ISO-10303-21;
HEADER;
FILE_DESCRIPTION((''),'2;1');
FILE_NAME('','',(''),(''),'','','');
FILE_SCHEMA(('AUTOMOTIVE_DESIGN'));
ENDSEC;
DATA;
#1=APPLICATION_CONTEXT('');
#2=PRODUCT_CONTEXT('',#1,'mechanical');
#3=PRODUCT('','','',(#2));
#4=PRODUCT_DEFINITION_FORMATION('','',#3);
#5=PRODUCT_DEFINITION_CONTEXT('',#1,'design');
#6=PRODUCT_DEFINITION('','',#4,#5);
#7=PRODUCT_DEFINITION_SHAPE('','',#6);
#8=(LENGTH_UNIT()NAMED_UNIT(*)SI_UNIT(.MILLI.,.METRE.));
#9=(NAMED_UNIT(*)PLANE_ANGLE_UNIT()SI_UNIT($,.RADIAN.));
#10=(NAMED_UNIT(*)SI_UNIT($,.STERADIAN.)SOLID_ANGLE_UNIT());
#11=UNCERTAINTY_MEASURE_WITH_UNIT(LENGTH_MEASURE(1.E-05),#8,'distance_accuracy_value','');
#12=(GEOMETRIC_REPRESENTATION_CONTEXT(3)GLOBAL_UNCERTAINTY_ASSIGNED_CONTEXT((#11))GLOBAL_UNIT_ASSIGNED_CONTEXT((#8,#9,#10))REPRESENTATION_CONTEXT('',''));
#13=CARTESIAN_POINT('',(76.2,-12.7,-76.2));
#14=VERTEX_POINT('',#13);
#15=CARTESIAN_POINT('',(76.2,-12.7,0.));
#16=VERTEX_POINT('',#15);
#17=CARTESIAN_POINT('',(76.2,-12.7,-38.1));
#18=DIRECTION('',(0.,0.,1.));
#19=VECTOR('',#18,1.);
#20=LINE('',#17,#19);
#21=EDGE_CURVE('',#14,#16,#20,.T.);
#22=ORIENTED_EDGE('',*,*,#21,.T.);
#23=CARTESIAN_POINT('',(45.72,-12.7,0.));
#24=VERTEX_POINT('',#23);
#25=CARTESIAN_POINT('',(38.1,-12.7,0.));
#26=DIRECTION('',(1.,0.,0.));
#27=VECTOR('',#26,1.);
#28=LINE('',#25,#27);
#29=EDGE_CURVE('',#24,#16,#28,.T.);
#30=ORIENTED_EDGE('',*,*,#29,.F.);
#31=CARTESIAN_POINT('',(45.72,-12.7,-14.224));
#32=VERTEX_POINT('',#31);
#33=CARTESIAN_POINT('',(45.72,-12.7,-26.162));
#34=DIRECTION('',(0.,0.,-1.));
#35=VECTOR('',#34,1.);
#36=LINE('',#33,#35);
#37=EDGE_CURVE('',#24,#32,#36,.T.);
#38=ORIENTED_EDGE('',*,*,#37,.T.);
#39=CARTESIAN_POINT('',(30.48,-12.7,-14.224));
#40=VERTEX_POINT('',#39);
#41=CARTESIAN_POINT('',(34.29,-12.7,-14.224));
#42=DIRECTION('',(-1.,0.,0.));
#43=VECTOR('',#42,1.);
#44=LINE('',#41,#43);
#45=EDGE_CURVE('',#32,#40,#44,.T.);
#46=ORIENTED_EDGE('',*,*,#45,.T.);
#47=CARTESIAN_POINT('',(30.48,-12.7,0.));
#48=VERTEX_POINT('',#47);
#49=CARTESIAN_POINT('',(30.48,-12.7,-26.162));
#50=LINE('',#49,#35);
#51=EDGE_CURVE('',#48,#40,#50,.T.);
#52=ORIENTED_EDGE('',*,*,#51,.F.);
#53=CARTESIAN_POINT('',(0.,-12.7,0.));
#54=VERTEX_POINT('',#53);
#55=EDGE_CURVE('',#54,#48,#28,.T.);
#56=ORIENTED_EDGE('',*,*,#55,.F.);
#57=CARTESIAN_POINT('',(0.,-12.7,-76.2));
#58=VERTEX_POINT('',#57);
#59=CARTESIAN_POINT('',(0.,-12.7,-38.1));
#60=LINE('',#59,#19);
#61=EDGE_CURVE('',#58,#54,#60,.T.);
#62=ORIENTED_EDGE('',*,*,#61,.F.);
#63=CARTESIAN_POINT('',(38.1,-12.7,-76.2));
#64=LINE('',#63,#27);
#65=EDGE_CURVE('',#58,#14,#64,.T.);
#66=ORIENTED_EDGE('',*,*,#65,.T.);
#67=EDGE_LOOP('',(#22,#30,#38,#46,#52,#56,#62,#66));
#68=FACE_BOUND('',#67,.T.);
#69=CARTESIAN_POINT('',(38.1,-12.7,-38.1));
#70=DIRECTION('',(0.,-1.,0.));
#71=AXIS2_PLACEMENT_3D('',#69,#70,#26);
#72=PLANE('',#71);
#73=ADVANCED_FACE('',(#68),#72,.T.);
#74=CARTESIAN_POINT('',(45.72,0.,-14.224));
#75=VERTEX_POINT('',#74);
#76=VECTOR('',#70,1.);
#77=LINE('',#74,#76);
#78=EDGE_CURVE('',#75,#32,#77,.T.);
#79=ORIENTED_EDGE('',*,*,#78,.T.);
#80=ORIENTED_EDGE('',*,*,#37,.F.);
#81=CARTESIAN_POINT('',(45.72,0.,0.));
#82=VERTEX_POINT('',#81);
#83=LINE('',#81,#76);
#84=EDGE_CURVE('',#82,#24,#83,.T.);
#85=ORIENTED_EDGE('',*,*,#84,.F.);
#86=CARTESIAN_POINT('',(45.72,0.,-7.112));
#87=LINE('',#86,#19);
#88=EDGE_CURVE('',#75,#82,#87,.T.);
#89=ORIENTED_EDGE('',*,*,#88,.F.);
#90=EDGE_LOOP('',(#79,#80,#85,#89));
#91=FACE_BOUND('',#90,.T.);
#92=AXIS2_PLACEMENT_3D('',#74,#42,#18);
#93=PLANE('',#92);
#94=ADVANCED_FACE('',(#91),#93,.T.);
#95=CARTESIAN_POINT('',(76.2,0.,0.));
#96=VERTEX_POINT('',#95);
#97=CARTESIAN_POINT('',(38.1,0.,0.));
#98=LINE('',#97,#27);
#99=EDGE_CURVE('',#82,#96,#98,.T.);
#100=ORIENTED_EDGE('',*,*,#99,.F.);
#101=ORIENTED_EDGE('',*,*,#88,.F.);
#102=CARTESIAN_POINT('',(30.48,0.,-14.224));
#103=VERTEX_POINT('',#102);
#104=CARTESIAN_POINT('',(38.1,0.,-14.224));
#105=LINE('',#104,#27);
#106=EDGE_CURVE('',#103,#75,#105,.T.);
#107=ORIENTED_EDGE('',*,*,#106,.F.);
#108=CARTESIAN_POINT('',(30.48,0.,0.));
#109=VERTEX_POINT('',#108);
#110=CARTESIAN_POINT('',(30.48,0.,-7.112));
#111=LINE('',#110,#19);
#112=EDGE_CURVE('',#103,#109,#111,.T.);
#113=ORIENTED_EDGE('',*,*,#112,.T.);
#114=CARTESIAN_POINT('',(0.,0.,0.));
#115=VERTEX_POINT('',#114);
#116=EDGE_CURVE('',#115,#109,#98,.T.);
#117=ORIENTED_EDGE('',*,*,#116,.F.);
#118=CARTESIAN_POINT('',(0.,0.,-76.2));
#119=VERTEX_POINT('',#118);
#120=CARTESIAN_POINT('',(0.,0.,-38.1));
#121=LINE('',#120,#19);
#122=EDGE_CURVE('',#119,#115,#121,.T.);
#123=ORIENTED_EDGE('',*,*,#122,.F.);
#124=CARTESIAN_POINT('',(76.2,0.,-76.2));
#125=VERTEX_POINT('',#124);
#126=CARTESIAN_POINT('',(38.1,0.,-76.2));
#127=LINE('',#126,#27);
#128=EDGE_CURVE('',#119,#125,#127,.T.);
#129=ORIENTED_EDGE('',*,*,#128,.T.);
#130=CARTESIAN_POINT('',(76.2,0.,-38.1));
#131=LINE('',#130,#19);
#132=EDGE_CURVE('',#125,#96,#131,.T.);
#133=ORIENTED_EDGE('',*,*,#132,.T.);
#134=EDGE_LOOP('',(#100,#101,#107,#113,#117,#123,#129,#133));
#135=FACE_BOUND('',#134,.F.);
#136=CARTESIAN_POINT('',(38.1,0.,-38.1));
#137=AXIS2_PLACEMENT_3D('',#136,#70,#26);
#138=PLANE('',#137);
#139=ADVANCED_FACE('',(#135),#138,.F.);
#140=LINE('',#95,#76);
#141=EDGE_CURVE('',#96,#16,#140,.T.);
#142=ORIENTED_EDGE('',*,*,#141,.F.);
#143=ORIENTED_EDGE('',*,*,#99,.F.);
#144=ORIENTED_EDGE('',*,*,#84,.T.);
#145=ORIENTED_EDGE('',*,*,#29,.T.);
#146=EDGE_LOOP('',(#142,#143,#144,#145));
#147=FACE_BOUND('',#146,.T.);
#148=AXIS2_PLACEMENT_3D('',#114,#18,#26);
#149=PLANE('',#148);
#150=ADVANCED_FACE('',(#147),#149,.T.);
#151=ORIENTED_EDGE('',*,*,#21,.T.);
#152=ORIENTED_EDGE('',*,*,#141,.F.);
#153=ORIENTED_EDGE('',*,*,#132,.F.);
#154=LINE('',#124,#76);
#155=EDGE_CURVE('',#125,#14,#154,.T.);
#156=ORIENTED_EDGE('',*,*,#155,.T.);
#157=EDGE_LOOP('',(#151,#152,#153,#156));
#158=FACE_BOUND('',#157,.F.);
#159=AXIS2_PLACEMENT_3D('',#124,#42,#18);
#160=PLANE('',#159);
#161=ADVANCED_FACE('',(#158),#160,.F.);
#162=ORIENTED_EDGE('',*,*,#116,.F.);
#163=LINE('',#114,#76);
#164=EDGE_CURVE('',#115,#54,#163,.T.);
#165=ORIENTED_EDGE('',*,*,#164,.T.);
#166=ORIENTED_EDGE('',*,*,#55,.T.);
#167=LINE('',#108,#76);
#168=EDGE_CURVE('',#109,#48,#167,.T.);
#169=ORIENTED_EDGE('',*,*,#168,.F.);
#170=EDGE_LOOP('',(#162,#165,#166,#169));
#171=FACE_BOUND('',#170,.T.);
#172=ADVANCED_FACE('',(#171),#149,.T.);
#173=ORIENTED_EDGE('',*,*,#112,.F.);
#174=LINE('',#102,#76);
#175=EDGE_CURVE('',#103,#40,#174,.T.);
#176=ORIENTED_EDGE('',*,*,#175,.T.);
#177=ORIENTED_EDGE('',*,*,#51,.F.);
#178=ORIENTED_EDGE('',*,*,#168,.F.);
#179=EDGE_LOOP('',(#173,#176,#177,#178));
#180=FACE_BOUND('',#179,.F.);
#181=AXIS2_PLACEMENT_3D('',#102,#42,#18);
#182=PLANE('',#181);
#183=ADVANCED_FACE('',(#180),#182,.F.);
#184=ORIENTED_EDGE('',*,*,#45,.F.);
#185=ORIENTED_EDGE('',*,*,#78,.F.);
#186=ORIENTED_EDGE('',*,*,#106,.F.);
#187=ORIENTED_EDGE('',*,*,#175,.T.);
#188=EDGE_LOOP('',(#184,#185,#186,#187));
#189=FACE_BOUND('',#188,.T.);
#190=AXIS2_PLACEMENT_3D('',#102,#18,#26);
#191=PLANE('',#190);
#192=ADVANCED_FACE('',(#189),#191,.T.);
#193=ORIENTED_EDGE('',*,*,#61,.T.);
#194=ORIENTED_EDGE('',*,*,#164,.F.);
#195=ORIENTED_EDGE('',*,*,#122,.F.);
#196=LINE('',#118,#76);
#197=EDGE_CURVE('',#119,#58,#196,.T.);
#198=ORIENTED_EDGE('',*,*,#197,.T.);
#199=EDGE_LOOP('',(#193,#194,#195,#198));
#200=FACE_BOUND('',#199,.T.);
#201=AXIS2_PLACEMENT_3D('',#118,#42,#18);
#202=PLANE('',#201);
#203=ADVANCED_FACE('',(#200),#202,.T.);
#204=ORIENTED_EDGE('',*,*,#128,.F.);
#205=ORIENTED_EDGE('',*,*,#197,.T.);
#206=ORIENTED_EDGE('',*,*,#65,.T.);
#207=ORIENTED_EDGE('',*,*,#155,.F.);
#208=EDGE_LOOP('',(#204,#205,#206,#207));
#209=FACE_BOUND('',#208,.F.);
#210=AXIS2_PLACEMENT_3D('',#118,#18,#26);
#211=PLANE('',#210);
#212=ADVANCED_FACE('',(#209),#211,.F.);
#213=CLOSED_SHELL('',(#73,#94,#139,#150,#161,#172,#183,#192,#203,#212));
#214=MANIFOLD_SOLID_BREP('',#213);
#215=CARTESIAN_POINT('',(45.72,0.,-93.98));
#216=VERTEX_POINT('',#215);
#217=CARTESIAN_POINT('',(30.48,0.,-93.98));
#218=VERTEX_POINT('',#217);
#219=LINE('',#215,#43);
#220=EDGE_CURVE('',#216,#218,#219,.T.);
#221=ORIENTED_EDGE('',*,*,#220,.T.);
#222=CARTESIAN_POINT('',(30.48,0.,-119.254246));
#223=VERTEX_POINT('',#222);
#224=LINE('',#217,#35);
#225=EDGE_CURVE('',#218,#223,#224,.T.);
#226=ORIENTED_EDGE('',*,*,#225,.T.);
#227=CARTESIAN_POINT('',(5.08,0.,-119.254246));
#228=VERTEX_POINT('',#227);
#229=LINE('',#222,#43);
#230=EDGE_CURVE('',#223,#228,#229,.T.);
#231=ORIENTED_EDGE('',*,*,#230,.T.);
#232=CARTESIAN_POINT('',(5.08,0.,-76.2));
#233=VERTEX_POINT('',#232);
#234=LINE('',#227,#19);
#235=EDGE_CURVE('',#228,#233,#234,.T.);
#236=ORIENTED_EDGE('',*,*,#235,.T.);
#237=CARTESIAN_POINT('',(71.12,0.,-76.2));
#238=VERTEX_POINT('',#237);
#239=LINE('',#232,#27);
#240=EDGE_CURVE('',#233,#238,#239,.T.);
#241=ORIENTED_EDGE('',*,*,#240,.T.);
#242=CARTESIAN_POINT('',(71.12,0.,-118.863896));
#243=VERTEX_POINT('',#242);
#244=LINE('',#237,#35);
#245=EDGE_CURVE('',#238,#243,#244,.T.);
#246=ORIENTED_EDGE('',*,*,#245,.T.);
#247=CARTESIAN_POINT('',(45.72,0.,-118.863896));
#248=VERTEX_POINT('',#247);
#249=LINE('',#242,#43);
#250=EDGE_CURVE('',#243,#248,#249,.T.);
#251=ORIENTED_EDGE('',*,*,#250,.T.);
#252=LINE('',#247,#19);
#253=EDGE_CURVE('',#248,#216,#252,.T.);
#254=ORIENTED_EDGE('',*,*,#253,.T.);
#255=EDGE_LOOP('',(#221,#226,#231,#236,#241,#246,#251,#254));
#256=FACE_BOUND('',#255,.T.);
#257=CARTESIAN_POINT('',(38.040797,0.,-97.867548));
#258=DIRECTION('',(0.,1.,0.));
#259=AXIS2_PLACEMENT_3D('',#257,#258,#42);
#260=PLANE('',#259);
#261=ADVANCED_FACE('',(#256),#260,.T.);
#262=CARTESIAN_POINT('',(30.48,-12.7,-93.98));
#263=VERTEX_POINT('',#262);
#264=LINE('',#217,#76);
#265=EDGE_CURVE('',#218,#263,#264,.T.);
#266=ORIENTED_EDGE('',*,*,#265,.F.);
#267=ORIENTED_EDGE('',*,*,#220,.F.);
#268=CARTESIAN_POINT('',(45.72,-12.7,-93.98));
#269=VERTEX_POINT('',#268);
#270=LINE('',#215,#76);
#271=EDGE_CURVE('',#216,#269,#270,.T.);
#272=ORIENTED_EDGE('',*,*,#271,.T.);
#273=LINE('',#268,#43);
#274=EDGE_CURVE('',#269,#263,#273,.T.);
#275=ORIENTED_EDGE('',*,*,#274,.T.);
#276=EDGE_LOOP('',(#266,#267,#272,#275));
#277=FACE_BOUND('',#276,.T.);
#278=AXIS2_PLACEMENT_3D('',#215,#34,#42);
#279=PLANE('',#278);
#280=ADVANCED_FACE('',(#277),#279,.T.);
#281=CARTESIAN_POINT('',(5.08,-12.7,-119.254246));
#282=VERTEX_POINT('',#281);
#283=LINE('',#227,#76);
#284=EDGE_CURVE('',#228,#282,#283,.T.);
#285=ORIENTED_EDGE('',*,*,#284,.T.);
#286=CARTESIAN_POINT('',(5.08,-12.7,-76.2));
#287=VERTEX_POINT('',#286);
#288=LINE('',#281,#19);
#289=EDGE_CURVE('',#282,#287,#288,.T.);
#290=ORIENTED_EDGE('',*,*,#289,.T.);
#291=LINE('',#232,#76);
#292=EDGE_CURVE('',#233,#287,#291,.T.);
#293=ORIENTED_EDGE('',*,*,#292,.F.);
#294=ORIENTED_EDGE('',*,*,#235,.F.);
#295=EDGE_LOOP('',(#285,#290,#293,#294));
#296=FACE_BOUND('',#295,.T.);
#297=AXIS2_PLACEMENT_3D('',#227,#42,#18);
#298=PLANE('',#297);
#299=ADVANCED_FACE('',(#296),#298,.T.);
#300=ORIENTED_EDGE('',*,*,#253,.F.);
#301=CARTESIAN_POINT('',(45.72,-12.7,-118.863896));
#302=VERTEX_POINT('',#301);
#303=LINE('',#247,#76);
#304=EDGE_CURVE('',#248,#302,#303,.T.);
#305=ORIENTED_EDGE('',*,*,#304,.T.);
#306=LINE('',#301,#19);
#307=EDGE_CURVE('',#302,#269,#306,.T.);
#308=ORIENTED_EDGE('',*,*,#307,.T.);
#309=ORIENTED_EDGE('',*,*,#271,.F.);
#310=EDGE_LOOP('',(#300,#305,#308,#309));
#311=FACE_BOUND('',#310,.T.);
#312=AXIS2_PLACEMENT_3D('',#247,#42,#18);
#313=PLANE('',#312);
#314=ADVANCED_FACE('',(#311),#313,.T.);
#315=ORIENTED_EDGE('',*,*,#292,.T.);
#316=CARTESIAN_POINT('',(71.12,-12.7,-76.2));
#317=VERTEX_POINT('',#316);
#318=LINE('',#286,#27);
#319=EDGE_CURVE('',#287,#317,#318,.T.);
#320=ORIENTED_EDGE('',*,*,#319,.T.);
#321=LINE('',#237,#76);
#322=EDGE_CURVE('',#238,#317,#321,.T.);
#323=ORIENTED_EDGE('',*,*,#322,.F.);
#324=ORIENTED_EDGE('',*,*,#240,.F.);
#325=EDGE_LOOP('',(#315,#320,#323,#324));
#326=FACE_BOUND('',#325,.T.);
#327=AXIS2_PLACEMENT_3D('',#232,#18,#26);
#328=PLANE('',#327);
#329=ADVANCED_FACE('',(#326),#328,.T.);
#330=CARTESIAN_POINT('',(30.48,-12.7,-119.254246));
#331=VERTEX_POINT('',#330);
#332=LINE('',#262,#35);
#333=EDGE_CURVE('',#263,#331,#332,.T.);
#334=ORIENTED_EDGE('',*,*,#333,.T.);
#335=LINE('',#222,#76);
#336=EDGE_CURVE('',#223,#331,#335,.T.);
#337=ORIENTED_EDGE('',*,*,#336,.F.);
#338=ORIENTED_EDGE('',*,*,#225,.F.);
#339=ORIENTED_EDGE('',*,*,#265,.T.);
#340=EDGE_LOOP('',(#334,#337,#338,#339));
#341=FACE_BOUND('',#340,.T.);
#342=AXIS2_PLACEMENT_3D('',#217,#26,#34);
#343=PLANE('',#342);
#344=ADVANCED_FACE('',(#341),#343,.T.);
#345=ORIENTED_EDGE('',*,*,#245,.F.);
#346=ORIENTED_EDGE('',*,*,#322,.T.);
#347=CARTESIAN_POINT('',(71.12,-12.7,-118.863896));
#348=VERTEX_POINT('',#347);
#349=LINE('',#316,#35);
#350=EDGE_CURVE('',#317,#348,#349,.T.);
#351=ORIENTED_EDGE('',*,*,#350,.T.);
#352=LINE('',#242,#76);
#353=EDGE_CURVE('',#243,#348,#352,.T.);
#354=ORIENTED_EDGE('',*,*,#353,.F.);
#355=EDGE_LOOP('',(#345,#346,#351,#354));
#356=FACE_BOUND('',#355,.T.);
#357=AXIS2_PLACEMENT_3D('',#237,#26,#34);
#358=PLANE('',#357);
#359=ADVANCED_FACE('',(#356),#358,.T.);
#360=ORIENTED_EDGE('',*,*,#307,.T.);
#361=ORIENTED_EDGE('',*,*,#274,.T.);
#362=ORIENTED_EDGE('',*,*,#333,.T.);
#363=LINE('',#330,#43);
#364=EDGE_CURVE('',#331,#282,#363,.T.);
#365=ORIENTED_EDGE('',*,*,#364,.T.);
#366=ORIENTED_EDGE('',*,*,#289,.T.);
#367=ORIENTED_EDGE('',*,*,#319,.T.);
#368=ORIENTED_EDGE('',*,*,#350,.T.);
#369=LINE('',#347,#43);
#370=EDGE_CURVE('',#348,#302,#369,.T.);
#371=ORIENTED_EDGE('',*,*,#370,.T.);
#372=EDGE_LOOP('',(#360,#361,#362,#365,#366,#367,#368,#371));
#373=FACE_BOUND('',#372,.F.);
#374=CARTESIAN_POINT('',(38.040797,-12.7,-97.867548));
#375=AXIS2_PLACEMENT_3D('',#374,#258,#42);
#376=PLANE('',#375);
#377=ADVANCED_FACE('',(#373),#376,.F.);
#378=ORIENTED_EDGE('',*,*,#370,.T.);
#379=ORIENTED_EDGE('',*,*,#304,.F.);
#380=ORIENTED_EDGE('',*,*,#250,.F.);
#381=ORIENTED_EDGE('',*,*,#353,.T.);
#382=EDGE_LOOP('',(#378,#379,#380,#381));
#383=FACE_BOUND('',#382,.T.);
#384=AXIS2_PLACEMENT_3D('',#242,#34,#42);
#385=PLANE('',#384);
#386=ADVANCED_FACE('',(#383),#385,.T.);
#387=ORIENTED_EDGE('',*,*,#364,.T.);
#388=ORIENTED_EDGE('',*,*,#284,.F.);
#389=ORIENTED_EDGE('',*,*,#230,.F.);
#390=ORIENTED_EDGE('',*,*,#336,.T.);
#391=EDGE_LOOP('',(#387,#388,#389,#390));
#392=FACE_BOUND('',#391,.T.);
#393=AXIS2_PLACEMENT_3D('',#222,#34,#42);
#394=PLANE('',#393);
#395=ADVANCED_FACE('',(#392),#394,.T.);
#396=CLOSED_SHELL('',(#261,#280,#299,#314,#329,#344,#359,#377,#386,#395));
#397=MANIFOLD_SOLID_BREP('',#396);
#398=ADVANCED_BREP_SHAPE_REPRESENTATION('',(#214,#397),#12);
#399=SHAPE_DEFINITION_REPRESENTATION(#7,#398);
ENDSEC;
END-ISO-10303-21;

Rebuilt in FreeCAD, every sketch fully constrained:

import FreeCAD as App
import Part
import Sketcher
Q = App.Units.Quantity


def add_polygon(sketch, points):
    """Adds a closed chain of lines whose ends are joined by coincident constraints."""
    first, n = sketch.GeometryCount, len(points)
    for a, b in zip(points, points[1:] + points[:1]):
        sketch.addGeometry(Part.LineSegment(App.Vector(*a, 0), App.Vector(*b, 0)), False)
    for i in range(n):
        sketch.addConstraint(Sketcher.Constraint("Coincident", first + i, 2, first + (i + 1) % n, 1))

doc = App.newDocument("Part")
body = doc.addObject("PartDesign::Body", "Body")

# Sketch on XZ plane
sketch1 = doc.addObject("Sketcher::SketchObject", "Sketch")
body.addObject(sketch1)
sketch1.AttachmentSupport = (doc.XZ_Plane, [""])
sketch1.MapMode = "FlatFace"
add_polygon(sketch1, [(0, 0), (0, -76.2), (76.2, -76.2), (76.2, 0)])  # lines 0-3
sketch1.addConstraint([
    Sketcher.Constraint("Vertical", 0),
    Sketcher.Constraint("Horizontal", 1),
    Sketcher.Constraint("Vertical", 2),
    Sketcher.Constraint("Horizontal", 3),
    Sketcher.Constraint("Coincident", 3, 2, -1, 1),
    Sketcher.Constraint("Equal", 3, 0),
    Sketcher.Constraint("DistanceX", 1, 1, 1, 2, Q("3 in")),
])
pad1 = doc.addObject("PartDesign::Pad", "Pad")
body.addObject(pad1)
pad1.Profile = sketch1
pad1.Length = Q("0.5 in")

# Sketch on XZ plane
sketch2 = doc.addObject("Sketcher::SketchObject", "Sketch001")
body.addObject(sketch2)
sketch2.AttachmentSupport = (doc.XZ_Plane, [""])
sketch2.MapMode = "FlatFace"
add_polygon(sketch2, [(30.48, 0), (30.48, -14.224), (45.72, -14.224), (45.72, 0)])  # lines 0-3
sketch2.addConstraint([
    Sketcher.Constraint("Vertical", 0),
    Sketcher.Constraint("Horizontal", 1),
    Sketcher.Constraint("Vertical", 2),
    Sketcher.Constraint("Horizontal", 3),
    Sketcher.Constraint("PointOnObject", 2, 2, -1),
    Sketcher.Constraint("DistanceX", 1, 1, 1, 2, Q("0.6 in")),
    Sketcher.Constraint("DistanceY", 0, 2, 0, 1, Q("0.56 in")),
    Sketcher.Constraint("DistanceX", -1, 1, 0, 2, Q("1.2 in")),
])
pocket1 = doc.addObject("PartDesign::Pocket", "Pocket")
body.addObject(pocket1)
pocket1.Profile = sketch2
pocket1.Length = Q("1 in")
pocket1.Reversed = True
body2 = doc.addObject("PartDesign::Body", "Body001")

# Sketch on XZ plane
sketch3 = doc.addObject("Sketcher::SketchObject", "Sketch002")
body2.addObject(sketch3)
sketch3.AttachmentSupport = (doc.getObject("XZ_Plane001"), [""])
sketch3.MapMode = "FlatFace"
add_polygon(sketch3, [(5.08, -76.2), (71.12, -76.2), (71.12, -118.863896), (45.72, -118.863896), (45.72, -93.98), (30.48, -93.98), (30.48, -119.254246), (5.08, -119.254246)])  # lines 0-7
sketch3.addConstraint([
    Sketcher.Constraint("Horizontal", 0),
    Sketcher.Constraint("Vertical", 1),
    Sketcher.Constraint("Horizontal", 2),
    Sketcher.Constraint("Vertical", 3),
    Sketcher.Constraint("Horizontal", 4),
    Sketcher.Constraint("Vertical", 5),
    Sketcher.Constraint("Horizontal", 6),
    Sketcher.Constraint("Vertical", 7),
    Sketcher.Constraint("Equal", 2, 6),
    Sketcher.Constraint("DistanceX", 2, 2, 2, 1, Q("1 in")),
    Sketcher.Constraint("DistanceX", 0, 1, 0, 2, Q("2.6 in")),
    Sketcher.Constraint("DistanceY", 0, 2, -1, 1, Q("3 in")),
    Sketcher.Constraint("DistanceX", -1, 1, 0, 2, Q("2.8 in")),
    Sketcher.Constraint("DistanceY", 3, 2, -1, 1, Q("3.7 in")),
    Sketcher.Constraint("DistanceY", 1, 2, 1, 1, Q("42.663896 mm")),
    Sketcher.Constraint("DistanceY", 5, 2, 5, 1, Q("25.274246 mm")),
])
pad2 = doc.addObject("PartDesign::Pad", "Pad001")
body2.addObject(pad2)
pad2.Profile = sketch3
pad2.Length = Q("0.5 in")

doc.recompute()
